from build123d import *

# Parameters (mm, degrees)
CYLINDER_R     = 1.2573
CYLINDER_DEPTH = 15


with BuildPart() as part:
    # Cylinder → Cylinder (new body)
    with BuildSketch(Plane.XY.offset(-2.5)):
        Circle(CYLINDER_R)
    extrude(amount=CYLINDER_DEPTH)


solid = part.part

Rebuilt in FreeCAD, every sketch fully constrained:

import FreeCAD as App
import Part
import Sketcher

V = App.Vector

doc = App.newDocument("Part")
body = doc.addObject("PartDesign::Body", "Body")

# Sketch on XY plane
sketch1 = body.newObject("Sketcher::SketchObject", "Sketch")
sketch1.AttachmentSupport = (doc.getObject("XY_Plane"), [""])
sketch1.MapMode = "FlatFace"
sketch1.AttachmentOffset = App.Placement(V(0, 0, -2.5), App.Rotation())
sketch1.addGeometry(Part.Circle(V(0, 0, 0), V(0, 0, 1), 1.3), False)
sketch1.addConstraint([
    Sketcher.Constraint("Coincident", 0, 3, -1, 1),
    Sketcher.Constraint("Diameter", 0, 2.5146),
])
pad1 = body.newObject("PartDesign::Pad", "Pad")
pad1.Profile = sketch1
pad1.Length = 15

doc.recompute()
